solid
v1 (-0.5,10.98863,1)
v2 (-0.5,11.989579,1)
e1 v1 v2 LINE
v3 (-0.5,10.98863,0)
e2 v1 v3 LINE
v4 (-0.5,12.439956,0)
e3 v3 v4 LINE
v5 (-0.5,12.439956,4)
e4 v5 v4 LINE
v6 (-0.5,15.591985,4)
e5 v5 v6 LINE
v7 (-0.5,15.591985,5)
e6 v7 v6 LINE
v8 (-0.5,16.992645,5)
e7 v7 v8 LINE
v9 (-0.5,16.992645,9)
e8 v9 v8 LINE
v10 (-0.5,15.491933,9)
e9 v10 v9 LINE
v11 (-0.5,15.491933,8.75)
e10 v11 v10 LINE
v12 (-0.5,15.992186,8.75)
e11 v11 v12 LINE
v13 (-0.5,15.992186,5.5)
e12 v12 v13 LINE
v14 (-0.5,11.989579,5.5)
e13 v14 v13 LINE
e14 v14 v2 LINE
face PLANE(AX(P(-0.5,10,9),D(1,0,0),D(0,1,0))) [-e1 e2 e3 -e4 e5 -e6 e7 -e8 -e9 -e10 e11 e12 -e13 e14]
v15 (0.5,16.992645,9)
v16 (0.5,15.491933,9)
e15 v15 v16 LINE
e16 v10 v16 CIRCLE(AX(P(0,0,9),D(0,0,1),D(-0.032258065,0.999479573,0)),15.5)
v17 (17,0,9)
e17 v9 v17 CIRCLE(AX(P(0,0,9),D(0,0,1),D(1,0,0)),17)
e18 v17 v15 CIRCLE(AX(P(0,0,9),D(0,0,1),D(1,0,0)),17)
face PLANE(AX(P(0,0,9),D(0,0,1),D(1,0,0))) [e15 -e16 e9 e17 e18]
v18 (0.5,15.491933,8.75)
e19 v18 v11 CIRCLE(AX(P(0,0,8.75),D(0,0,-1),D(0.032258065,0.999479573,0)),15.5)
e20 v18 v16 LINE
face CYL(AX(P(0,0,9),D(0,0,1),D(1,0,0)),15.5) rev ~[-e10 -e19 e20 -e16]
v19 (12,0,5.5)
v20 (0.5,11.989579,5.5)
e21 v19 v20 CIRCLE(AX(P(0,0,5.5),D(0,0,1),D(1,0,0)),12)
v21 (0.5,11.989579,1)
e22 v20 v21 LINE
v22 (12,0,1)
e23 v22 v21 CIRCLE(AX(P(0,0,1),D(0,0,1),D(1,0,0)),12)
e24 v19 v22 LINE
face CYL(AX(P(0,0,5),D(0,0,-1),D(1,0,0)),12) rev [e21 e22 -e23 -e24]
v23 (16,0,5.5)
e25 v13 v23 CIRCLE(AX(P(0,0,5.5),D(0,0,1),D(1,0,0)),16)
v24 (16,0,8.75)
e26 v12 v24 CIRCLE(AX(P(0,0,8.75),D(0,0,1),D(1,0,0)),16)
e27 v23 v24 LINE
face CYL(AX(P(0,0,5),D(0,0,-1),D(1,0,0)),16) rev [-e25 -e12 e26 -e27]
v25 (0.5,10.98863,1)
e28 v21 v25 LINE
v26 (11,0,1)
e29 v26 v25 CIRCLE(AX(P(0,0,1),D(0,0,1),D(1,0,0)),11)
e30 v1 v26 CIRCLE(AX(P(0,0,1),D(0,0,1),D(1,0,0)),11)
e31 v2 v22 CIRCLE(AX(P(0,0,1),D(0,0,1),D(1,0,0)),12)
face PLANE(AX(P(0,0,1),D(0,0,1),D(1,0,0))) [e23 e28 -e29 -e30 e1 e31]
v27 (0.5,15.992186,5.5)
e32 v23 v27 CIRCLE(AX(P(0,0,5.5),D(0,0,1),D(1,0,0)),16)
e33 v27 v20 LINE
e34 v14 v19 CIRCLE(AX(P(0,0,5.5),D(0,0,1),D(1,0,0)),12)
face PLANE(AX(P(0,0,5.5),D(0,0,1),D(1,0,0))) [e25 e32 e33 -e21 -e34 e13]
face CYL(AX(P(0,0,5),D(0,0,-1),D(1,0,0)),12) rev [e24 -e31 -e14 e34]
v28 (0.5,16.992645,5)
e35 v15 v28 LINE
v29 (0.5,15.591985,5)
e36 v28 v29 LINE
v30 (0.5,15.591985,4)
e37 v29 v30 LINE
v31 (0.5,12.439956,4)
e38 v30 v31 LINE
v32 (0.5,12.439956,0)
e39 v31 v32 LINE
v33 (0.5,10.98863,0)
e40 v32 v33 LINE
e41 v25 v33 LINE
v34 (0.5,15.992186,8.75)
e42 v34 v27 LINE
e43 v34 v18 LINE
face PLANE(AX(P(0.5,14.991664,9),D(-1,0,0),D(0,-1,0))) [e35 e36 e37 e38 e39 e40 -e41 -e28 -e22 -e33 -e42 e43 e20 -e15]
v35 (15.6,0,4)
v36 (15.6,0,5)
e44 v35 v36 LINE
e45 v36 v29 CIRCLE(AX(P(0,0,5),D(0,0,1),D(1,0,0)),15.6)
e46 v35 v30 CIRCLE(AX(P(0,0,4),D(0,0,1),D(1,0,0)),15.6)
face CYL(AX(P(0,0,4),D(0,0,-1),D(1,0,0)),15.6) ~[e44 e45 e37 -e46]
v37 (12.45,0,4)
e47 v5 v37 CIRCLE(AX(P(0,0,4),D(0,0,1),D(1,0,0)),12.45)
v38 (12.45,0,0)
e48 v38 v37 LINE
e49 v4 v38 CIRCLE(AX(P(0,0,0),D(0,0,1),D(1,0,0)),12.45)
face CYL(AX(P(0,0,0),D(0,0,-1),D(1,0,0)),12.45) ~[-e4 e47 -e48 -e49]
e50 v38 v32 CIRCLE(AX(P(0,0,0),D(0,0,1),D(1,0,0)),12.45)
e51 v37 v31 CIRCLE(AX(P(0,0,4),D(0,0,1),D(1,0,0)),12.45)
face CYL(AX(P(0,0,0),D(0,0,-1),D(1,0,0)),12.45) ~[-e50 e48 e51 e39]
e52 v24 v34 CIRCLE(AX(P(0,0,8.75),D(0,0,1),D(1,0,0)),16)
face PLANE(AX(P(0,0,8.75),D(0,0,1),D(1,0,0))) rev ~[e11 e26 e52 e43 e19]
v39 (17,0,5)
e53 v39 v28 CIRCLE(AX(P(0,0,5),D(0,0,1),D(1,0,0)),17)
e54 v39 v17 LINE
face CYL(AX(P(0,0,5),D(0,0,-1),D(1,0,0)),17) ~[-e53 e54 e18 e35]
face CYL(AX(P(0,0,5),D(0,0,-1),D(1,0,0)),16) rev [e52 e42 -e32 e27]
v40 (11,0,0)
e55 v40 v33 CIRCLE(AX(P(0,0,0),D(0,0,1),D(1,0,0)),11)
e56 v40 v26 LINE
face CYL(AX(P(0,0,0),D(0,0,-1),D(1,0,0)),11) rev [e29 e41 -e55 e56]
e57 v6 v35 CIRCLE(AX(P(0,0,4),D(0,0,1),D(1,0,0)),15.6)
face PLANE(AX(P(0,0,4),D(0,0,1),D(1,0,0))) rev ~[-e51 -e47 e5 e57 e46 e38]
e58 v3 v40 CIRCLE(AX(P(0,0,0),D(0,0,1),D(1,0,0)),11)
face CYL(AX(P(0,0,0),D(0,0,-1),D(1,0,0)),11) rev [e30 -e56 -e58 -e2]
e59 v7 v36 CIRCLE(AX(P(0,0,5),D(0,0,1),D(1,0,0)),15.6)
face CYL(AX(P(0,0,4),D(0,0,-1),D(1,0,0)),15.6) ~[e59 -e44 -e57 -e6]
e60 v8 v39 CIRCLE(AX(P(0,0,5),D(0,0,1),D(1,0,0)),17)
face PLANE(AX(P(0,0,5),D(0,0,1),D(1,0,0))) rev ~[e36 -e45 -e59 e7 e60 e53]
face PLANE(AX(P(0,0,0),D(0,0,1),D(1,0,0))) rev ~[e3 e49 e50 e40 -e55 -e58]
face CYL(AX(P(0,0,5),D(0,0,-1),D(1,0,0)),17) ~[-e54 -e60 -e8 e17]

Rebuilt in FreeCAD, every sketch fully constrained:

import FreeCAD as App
import Part
import Sketcher
from FreeCAD import Vector
Q = App.Units.Quantity


def add_polygon(sketch, points):
    """Adds a closed chain of lines whose ends are joined by coincident constraints."""
    first, n = sketch.GeometryCount, len(points)
    for a, b in zip(points, points[1:] + points[:1]):
        sketch.addGeometry(Part.LineSegment(App.Vector(*a, 0), App.Vector(*b, 0)), False)
    for i in range(n):
        sketch.addConstraint(Sketcher.Constraint("Coincident", first + i, 2, first + (i + 1) % n, 1))

doc = App.newDocument("Part")
body = doc.addObject("PartDesign::Body", "Body")

sketch1 = body.newObject("Sketcher::SketchObject", "Sketch")
sketch1.AttachmentSupport = (doc.getObject("XY_Plane"), [""])
sketch1.MapMode = "FlatFace"
sketch1.addGeometry([
    Part.Circle(Vector(0, 0, 0), Vector(0, 0, 1), 12),
    Part.Circle(Vector(0, 0, 0), Vector(0, 0, 1), 11),
], False)
sketch1.addConstraint([
    Sketcher.Constraint("Coincident", 0, 3, -1, 1),
    Sketcher.Constraint("Coincident", 1, 3, -1, 1),
    Sketcher.Constraint("Diameter", 0, Q("24 mm")),
    Sketcher.Constraint("Diameter", 1, Q("22 mm")),
])
pad1 = body.newObject("PartDesign::Pad", "Pad")
pad1.Profile = sketch1
pad1.Length = 1

sketch2 = body.newObject("Sketcher::SketchObject", "Sketch001")
sketch2.AttachmentSupport = (doc.getObject("XY_Plane"), [""])
sketch2.MapMode = "FlatFace"
sketch2.addGeometry([
    Part.Circle(Vector(0, 0, 0), Vector(0, 0, 1), 12),
    Part.Circle(Vector(0, 0, 0), Vector(0, 0, 1), 12),
], False)
sketch2.addConstraint([
    Sketcher.Constraint("Coincident", 0, 3, -1, 1),
    Sketcher.Constraint("Coincident", 1, 3, -1, 1),
    Sketcher.Constraint("Diameter", 1, Q("24 mm")),
    Sketcher.Constraint("Diameter", 0, Q("24.9 mm")),
])
pad2 = body.newObject("PartDesign::Pad", "Pad001")
pad2.Profile = sketch2
pad2.Length = 4

sketch3 = body.newObject("Sketcher::SketchObject", "Sketch002")
sketch3.AttachmentSupport = (doc.getObject("XY_Plane"), [""])
sketch3.MapMode = "FlatFace"
sketch3.AttachmentOffset = App.Placement(Vector(0, 0, 4), App.Rotation())
sketch3.addGeometry([
    Part.Circle(Vector(0, 0, 0), Vector(0, 0, 1), 16),
    Part.Circle(Vector(0, 0, 0), Vector(0, 0, 1), 12),
], False)
sketch3.addConstraint([
    Sketcher.Constraint("Coincident", 0, 3, -1, 1),
    Sketcher.Constraint("Coincident", 1, 3, -1, 1),
    Sketcher.Constraint("Diameter", 1, Q("24 mm")),
    Sketcher.Constraint("Diameter", 0, Q("31.2 mm")),
])
pad3 = body.newObject("PartDesign::Pad", "Pad002")
pad3.Profile = sketch3
pad3.Length = 1

sketch4 = body.newObject("Sketcher::SketchObject", "Sketch003")
sketch4.AttachmentSupport = (doc.getObject("XY_Plane"), [""])
sketch4.MapMode = "FlatFace"
sketch4.AttachmentOffset = App.Placement(Vector(0, 0, 5), App.Rotation())
sketch4.addGeometry([
    Part.Circle(Vector(0, 0, 0), Vector(0, 0, 1), 16),
    Part.Circle(Vector(0, 0, 0), Vector(0, 0, 1), 12),
], False)
sketch4.addConstraint([
    Sketcher.Constraint("Coincident", 0, 3, -1, 1),
    Sketcher.Constraint("Coincident", 1, 3, -1, 1),
    Sketcher.Constraint("Diameter", 0, Q("32 mm")),
    Sketcher.Constraint("Diameter", 1, Q("24 mm")),
])
pad4 = body.newObject("PartDesign::Pad", "Pad003")
pad4.Profile = sketch4
pad4.Length = 0.5

sketch5 = body.newObject("Sketcher::SketchObject", "Sketch004")
sketch5.AttachmentSupport = (doc.getObject("XY_Plane"), [""])
sketch5.MapMode = "FlatFace"
sketch5.AttachmentOffset = App.Placement(Vector(0, 0, 5), App.Rotation())
sketch5.addGeometry([
    Part.Circle(Vector(0, 0, 0), Vector(0, 0, 1), 17),
    Part.Circle(Vector(0, 0, 0), Vector(0, 0, 1), 16),
], False)
sketch5.addConstraint([
    Sketcher.Constraint("Coincident", 0, 3, -1, 1),
    Sketcher.Constraint("Coincident", 1, 3, -1, 1),
    Sketcher.Constraint("Diameter", 0, Q("34 mm")),
    Sketcher.Constraint("Diameter", 1, Q("32 mm")),
])
pad5 = body.newObject("PartDesign::Pad", "Pad004")
pad5.Profile = sketch5
pad5.Length = 4

sketch6 = body.newObject("Sketcher::SketchObject", "Sketch005")
sketch6.AttachmentSupport = (doc.getObject("XY_Plane"), [""])
sketch6.MapMode = "FlatFace"
sketch6.AttachmentOffset = App.Placement(Vector(0, 0, 9), App.Rotation())
sketch6.addGeometry([
    Part.Circle(Vector(0, 0, 0), Vector(0, 0, 1), 16),
    Part.Circle(Vector(0, 0, 0), Vector(0, 0, 1), 16),
], False)
sketch6.addConstraint([
    Sketcher.Constraint("Coincident", 0, 3, -1, 1),
    Sketcher.Constraint("Coincident", 1, 3, -1, 1),
    Sketcher.Constraint("Diameter", 1, Q("31 mm")),
    Sketcher.Constraint("Diameter", 0, Q("32 mm")),
])
pad6 = body.newObject("PartDesign::Pad", "Pad005")
pad6.Profile = sketch6
pad6.Length = 0.25
pad6.Reversed = True

sketch7 = body.newObject("Sketcher::SketchObject", "Sketch006")
sketch7.AttachmentSupport = (doc.getObject("XY_Plane"), [""])
sketch7.MapMode = "FlatFace"
sketch7.AttachmentOffset = App.Placement(Vector(0, 0, 9), App.Rotation())
add_polygon(sketch7, [(-0.5, 10), (0.5, 10), (0.5, 20), (-0.5, 20)])
sketch7.addConstraint([
    Sketcher.Constraint("Horizontal", 0),
    Sketcher.Constraint("Vertical", 1),
    Sketcher.Constraint("Horizontal", 2),
    Sketcher.Constraint("Vertical", 3),
    Sketcher.Constraint("DistanceX", 0, 1, 0, 2, Q("1 mm")),
    Sketcher.Constraint("DistanceY", 1, 1, 1, 2, Q("10 mm")),
    Sketcher.Constraint("DistanceY", -1, 1, 0, 2, Q("10 mm")),
    Sketcher.Constraint("DistanceX", -1, 1, 0, 2, Q("0.5 mm")),
])
pocket1 = body.newObject("PartDesign::Pocket", "Pocket")
pocket1.Profile = sketch7
pocket1.Length = 10

doc.recompute()
